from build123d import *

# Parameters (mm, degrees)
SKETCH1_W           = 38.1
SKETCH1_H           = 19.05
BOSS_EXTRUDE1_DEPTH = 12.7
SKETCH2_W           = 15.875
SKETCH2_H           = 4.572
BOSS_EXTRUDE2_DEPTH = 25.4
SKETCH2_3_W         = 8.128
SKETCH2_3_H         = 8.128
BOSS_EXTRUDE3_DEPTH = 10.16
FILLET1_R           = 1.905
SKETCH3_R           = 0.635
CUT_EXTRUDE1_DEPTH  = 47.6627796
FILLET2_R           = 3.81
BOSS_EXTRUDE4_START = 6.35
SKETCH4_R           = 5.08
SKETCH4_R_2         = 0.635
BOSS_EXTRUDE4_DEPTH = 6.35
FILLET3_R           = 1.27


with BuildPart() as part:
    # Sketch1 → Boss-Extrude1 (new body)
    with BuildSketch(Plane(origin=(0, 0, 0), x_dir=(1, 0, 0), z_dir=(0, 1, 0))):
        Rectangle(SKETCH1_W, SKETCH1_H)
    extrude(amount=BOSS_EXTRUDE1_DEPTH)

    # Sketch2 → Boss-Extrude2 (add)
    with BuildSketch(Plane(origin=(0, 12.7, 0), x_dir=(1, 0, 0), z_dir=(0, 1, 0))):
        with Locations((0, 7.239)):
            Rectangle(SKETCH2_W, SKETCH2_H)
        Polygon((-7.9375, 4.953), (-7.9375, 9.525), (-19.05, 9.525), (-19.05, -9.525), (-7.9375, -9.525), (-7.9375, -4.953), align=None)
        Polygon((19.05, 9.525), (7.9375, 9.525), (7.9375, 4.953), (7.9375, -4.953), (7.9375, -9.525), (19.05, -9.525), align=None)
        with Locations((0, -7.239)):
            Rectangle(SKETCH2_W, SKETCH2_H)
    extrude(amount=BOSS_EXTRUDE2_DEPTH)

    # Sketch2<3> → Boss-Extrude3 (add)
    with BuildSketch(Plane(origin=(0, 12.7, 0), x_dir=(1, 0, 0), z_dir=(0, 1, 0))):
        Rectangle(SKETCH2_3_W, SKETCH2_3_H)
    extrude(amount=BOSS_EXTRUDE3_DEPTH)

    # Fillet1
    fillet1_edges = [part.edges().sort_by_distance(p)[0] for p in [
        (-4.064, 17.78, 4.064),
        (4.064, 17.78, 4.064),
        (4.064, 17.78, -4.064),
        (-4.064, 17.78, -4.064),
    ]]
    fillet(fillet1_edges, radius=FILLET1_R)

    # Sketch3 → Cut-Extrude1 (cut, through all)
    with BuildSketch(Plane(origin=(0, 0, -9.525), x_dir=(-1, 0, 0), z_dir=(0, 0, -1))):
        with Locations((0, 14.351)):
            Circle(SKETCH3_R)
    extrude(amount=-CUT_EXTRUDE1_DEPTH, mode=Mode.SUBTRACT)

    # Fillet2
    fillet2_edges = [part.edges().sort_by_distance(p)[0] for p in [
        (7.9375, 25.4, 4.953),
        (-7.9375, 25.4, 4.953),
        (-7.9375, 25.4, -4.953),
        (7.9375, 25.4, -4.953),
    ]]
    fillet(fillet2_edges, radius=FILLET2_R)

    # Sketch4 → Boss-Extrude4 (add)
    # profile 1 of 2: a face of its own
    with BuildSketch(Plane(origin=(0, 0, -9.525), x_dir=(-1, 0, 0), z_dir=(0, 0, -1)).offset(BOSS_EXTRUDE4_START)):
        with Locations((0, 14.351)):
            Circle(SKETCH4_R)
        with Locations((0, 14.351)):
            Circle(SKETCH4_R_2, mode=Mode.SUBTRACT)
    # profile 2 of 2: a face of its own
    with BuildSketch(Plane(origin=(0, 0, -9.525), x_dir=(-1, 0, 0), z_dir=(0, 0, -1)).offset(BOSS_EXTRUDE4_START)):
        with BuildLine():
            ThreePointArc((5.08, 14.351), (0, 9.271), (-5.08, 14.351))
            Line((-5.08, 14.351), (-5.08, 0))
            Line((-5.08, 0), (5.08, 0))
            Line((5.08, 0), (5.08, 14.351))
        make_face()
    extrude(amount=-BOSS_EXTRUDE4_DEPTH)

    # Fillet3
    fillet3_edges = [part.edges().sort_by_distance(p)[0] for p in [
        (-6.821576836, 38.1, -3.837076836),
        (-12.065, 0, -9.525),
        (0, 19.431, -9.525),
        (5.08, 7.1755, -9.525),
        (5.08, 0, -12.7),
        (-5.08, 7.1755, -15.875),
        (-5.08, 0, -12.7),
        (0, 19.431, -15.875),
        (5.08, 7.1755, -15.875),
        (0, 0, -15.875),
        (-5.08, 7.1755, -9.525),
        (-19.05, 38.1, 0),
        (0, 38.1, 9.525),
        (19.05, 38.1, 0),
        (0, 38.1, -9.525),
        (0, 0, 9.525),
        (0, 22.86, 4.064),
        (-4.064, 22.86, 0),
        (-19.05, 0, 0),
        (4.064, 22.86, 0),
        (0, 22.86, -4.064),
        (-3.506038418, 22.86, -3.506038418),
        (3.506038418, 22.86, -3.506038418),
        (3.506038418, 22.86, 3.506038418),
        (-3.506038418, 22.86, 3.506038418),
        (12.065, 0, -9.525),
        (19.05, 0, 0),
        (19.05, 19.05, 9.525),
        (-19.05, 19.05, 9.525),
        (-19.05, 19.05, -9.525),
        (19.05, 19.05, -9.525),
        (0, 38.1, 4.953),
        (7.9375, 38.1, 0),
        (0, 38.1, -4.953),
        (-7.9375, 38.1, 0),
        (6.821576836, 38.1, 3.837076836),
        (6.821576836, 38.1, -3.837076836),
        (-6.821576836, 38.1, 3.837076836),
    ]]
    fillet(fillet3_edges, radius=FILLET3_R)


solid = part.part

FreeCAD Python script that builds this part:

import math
import FreeCAD as App
import Part
import Sketcher

V = App.Vector
Q = App.Units.Quantity


def edges_at(feature, points):
    """Names of the edges that pass closest to the given points."""
    edges = feature.Shape.Edges
    near = lambda p: min(range(len(edges)), key=lambda i: edges[i].distToShape(Part.Vertex(*p))[0])
    return sorted({f"Edge{near(p) + 1}" for p in points})

doc = App.newDocument("Part")
body = doc.addObject("PartDesign::Body", "Body")

sketch1 = body.newObject("Sketcher::SketchObject", "Sketch")
sketch1.AttachmentSupport = (doc.getObject("XZ_Plane"), [""])
sketch1.MapMode = "FlatFace"
sketch1.addGeometry(Part.LineSegment(V(-19, -10, 0), V(-19, 10, 0)), False)
sketch1.addGeometry(Part.LineSegment(V(-19, 10, 0), V(19, 10, 0)), False)
sketch1.addGeometry(Part.LineSegment(V(19, 10, 0), V(19, -10, 0)), False)
sketch1.addGeometry(Part.LineSegment(V(19, -10, 0), V(-19, -10, 0)), False)
sketch1.addConstraint(Sketcher.Constraint("Coincident", 0, 2, 1, 1))
sketch1.addConstraint(Sketcher.Constraint("Coincident", 1, 2, 2, 1))
sketch1.addConstraint(Sketcher.Constraint("Coincident", 2, 2, 3, 1))
sketch1.addConstraint(Sketcher.Constraint("Coincident", 3, 2, 0, 1))
sketch1.addConstraint(Sketcher.Constraint("Vertical", 0))
sketch1.addConstraint(Sketcher.Constraint("Horizontal", 1))
sketch1.addConstraint(Sketcher.Constraint("Vertical", 2))
sketch1.addConstraint(Sketcher.Constraint("Horizontal", 3))
sketch1.addConstraint(Sketcher.Constraint("Symmetric", 0, 2, 2, 2, -1, 1))
sketch1.addConstraint(Sketcher.Constraint("DistanceX", 1, 1, 1, 2, Q("1.5 in")))
sketch1.addConstraint(Sketcher.Constraint("DistanceY", 0, 1, 0, 2, Q("0.75 in")))
pad1 = body.newObject("PartDesign::Pad", "Pad")
pad1.Profile = sketch1
pad1.Length = Q("0.5 in")
pad1.Reversed = True

sketch2 = body.newObject("Sketcher::SketchObject", "Sketch001")
sketch2.AttachmentSupport = (doc.getObject("XZ_Plane"), [""])
sketch2.MapMode = "FlatFace"
sketch2.AttachmentOffset = App.Placement(V(0, 0, -0.5 * 25.4), App.Rotation())
sketch2.addGeometry(Part.LineSegment(V(19, 10, 0), V(19, -10, 0)), False)
sketch2.addGeometry(Part.LineSegment(V(19, -10, 0), V(-19, -10, 0)), False)
sketch2.addGeometry(Part.LineSegment(V(-19, -10, 0), V(-19, 10, 0)), False)
sketch2.addGeometry(Part.LineSegment(V(-19, 10, 0), V(19, 10, 0)), False)
sketch2.addGeometry(Part.LineSegment(V(-8, -5, 0), V(8, -5, 0)), False)
sketch2.addGeometry(Part.LineSegment(V(8, -5, 0), V(8, 5, 0)), False)
sketch2.addGeometry(Part.LineSegment(V(8, 5, 0), V(-8, 5, 0)), False)
sketch2.addGeometry(Part.LineSegment(V(-8, 5, 0), V(-8, -5, 0)), False)
sketch2.addConstraint(Sketcher.Constraint("Coincident", 0, 2, 1, 1))
sketch2.addConstraint(Sketcher.Constraint("Coincident", 1, 2, 2, 1))
sketch2.addConstraint(Sketcher.Constraint("Coincident", 2, 2, 3, 1))
sketch2.addConstraint(Sketcher.Constraint("Coincident", 3, 2, 0, 1))
sketch2.addConstraint(Sketcher.Constraint("Coincident", 4, 2, 5, 1))
sketch2.addConstraint(Sketcher.Constraint("Coincident", 5, 2, 6, 1))
sketch2.addConstraint(Sketcher.Constraint("Coincident", 6, 2, 7, 1))
sketch2.addConstraint(Sketcher.Constraint("Coincident", 7, 2, 4, 1))
sketch2.addConstraint(Sketcher.Constraint("Vertical", 0))
sketch2.addConstraint(Sketcher.Constraint("Horizontal", 1))
sketch2.addConstraint(Sketcher.Constraint("Vertical", 2))
sketch2.addConstraint(Sketcher.Constraint("Horizontal", 3))
sketch2.addConstraint(Sketcher.Constraint("Horizontal", 4))
sketch2.addConstraint(Sketcher.Constraint("Vertical", 5))
sketch2.addConstraint(Sketcher.Constraint("Horizontal", 6))
sketch2.addConstraint(Sketcher.Constraint("Vertical", 7))
sketch2.addConstraint(Sketcher.Constraint("Symmetric", 0, 2, 2, 2, -1, 1))
sketch2.addConstraint(Sketcher.Constraint("Symmetric", 4, 2, 6, 2, -1, 1))
sketch2.addConstraint(Sketcher.Constraint("DistanceX", 1, 2, 1, 1, Q("1.5 in")))
sketch2.addConstraint(Sketcher.Constraint("DistanceY", 0, 2, 0, 1, Q("0.75 in")))
sketch2.addConstraint(Sketcher.Constraint("DistanceY", 5, 1, 5, 2, Q("0.39 in")))
sketch2.addConstraint(Sketcher.Constraint("DistanceX", 4, 1, 4, 2, Q("0.625 in")))
pad2 = body.newObject("PartDesign::Pad", "Pad001")
pad2.Profile = sketch2
pad2.Length = Q("1 in")
pad2.Reversed = True

sketch3 = body.newObject("Sketcher::SketchObject", "Sketch002")
sketch3.AttachmentSupport = (doc.getObject("XZ_Plane"), [""])
sketch3.MapMode = "FlatFace"
sketch3.AttachmentOffset = App.Placement(V(0, 0, -0.5 * 25.4), App.Rotation())
sketch3.addGeometry(Part.LineSegment(V(-4, -4, 0), V(-4, 4, 0)), False)
sketch3.addGeometry(Part.LineSegment(V(-4, 4, 0), V(4, 4, 0)), False)
sketch3.addGeometry(Part.LineSegment(V(4, 4, 0), V(4, -4, 0)), False)
sketch3.addGeometry(Part.LineSegment(V(4, -4, 0), V(-4, -4, 0)), False)
sketch3.addConstraint(Sketcher.Constraint("Coincident", 0, 2, 1, 1))
sketch3.addConstraint(Sketcher.Constraint("Coincident", 1, 2, 2, 1))
sketch3.addConstraint(Sketcher.Constraint("Coincident", 2, 2, 3, 1))
sketch3.addConstraint(Sketcher.Constraint("Coincident", 3, 2, 0, 1))
sketch3.addConstraint(Sketcher.Constraint("Vertical", 0))
sketch3.addConstraint(Sketcher.Constraint("Horizontal", 1))
sketch3.addConstraint(Sketcher.Constraint("Vertical", 2))
sketch3.addConstraint(Sketcher.Constraint("Horizontal", 3))
sketch3.addConstraint(Sketcher.Constraint("Symmetric", 0, 2, 2, 2, -1, 1))
sketch3.addConstraint(Sketcher.Constraint("Equal", 3, 0))
sketch3.addConstraint(Sketcher.Constraint("DistanceX", 1, 1, 1, 2, Q("0.32 in")))
pad3 = body.newObject("PartDesign::Pad", "Pad002")
pad3.Profile = sketch3
pad3.Length = Q("0.4 in")
pad3.Reversed = True
doc.recompute()

fillet = body.newObject("PartDesign::Fillet", "Fillet")
fillet.Base = (pad3, edges_at(pad3, [
    (-4.064, 17.78, 4.064),
    (4.064, 17.78, 4.064),
    (4.064, 17.78, -4.064),
    (-4.064, 17.78, -4.064),
]))
fillet.Radius = Q("0.075 in")

sketch4 = body.newObject("Sketcher::SketchObject", "Sketch003")
sketch4.AttachmentSupport = (doc.getObject("XY_Plane"), [""])
sketch4.MapMode = "FlatFace"
sketch4.AttachmentOffset = App.Placement(V(0, 0, -0.375 * 25.4), App.Rotation())
sketch4.addGeometry(Part.Circle(V(0, 14.4, 0), V(0, 0, 1), 0.6), False)
sketch4.addConstraint(Sketcher.Constraint("PointOnObject", 0, 3, -2))
sketch4.addConstraint(Sketcher.Constraint("Diameter", 0, Q("0.05 in")))
sketch4.addConstraint(Sketcher.Constraint("DistanceY", -1, 1, 0, 3, Q("0.565 in")))
pocket1 = body.newObject("PartDesign::Pocket", "Pocket")
pocket1.Profile = sketch4
pocket1.Type = "ThroughAll"
pocket1.Reversed = True
doc.recompute()

fillet2 = body.newObject("PartDesign::Fillet", "Fillet001")
fillet2.Base = (pocket1, edges_at(pocket1, [
    (7.938, 25.4, 4.953),
    (-7.938, 25.4, 4.953),
    (-7.938, 25.4, -4.953),
    (7.938, 25.4, -4.953),
]))
fillet2.Radius = Q("0.15 in")

sketch5 = body.newObject("Sketcher::SketchObject", "Sketch004")
sketch5.AttachmentSupport = (doc.getObject("XY_Plane"), [""])
sketch5.MapMode = "FlatFace"
sketch5.AttachmentOffset = App.Placement(V(0, 0, -0.625 * 25.4), App.Rotation())
sketch5.addGeometry(Part.ArcOfCircle(Part.Circle(V(0, 14.4, 0), V(0, 0, 1), 5.1), math.radians(0), math.radians(180)), False)
sketch5.addGeometry(Part.LineSegment(V(5.1, 14.4, 0), V(5.1, 0, 0)), False)
sketch5.addGeometry(Part.LineSegment(V(5.1, 0, 0), V(-5.1, 0, 0)), False)
sketch5.addGeometry(Part.LineSegment(V(-5.1, 0, 0), V(-5.1, 14.4, 0)), False)
sketch5.addGeometry(Part.Circle(V(0, 14.4, 0), V(0, 0, 1), 0.6), False)
sketch5.addConstraint(Sketcher.Constraint("Tangent", 0, 1, 1, 1))
sketch5.addConstraint(Sketcher.Constraint("Coincident", 1, 2, 2, 1))
sketch5.addConstraint(Sketcher.Constraint("Coincident", 2, 2, 3, 1))
sketch5.addConstraint(Sketcher.Constraint("Tangent", 3, 2, 0, 2))
sketch5.addConstraint(Sketcher.Constraint("Vertical", 1))
sketch5.addConstraint(Sketcher.Constraint("Horizontal", 2))
sketch5.addConstraint(Sketcher.Constraint("Vertical", 3))
sketch5.addConstraint(Sketcher.Constraint("Coincident", 4, 3, 0, 3))
sketch5.addConstraint(Sketcher.Constraint("Symmetric", 1, 2, 2, 2, -1, 1))
sketch5.addConstraint(Sketcher.Constraint("Radius", 0, Q("0.2 in")))
sketch5.addConstraint(Sketcher.Constraint("Diameter", 4, Q("0.05 in")))
sketch5.addConstraint(Sketcher.Constraint("DistanceY", 1, 2, 1, 1, Q("0.565 in")))
pad4 = body.newObject("PartDesign::Pad", "Pad003")
pad4.Profile = sketch5
pad4.Length = Q("0.25 in")
doc.recompute()

fillet3 = body.newObject("PartDesign::Fillet", "Fillet002")
fillet3.Base = (pad4, edges_at(pad4, [
    (-6.822, 38.1, -3.837),
    (-12.065, 0, -9.525),
    (0, 19.431, -9.525),
    (5.08, 7.176, -9.525),
    (5.08, 0, -12.7),
    (-5.08, 7.176, -15.875),
    (-5.08, 0, -12.7),
    (0, 19.431, -15.875),
    (5.08, 7.176, -15.875),
    (0, 0, -15.875),
    (-5.08, 7.176, -9.525),
    (-19.05, 38.1, 0),
    (0, 38.1, 9.525),
    (19.05, 38.1, 0),
    (0, 38.1, -9.525),
    (0, 0, 9.525),
    (0, 22.86, 4.064),
    (-4.064, 22.86, 0),
    (-19.05, 0, 0),
    (4.064, 22.86, 0),
    (0, 22.86, -4.064),
    (-3.506, 22.86, -3.506),
    (3.506, 22.86, -3.506),
    (3.506, 22.86, 3.506),
    (-3.506, 22.86, 3.506),
    (12.065, 0, -9.525),
    (19.05, 0, 0),
    (19.05, 19.05, 9.525),
    (-19.05, 19.05, 9.525),
    (-19.05, 19.05, -9.525),
    (19.05, 19.05, -9.525),
    (0, 38.1, 4.953),
    (7.938, 38.1, 0),
    (0, 38.1, -4.953),
    (-7.938, 38.1, 0),
    (6.822, 38.1, 3.837),
    (6.822, 38.1, -3.837),
    (-6.822, 38.1, 3.837),
]))
fillet3.Radius = Q("0.05 in")

doc.recompute()
